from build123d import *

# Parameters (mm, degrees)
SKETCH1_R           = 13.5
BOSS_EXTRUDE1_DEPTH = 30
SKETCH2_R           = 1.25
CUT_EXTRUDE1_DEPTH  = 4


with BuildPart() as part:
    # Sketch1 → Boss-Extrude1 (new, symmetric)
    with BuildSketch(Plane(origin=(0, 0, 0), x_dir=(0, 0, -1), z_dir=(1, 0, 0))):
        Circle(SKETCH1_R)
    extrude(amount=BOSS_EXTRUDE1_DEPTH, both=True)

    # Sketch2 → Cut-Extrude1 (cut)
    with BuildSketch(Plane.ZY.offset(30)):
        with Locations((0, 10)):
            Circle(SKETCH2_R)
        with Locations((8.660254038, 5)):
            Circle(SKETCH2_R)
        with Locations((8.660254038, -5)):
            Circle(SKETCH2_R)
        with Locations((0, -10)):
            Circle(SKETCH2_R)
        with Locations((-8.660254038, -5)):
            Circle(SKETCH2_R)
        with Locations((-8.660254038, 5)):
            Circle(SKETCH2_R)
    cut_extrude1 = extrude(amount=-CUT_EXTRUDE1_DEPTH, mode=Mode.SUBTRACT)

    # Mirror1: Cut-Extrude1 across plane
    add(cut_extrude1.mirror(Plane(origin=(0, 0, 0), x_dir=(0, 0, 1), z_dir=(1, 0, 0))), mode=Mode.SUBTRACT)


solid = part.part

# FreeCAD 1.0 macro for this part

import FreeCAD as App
import Part
import Sketcher

doc = App.newDocument("Part")
body = doc.addObject("PartDesign::Body", "Body")

sketch1 = body.newObject("Sketcher::SketchObject", "Sketch")
sketch1.AttachmentSupport = (doc.getObject("YZ_Plane"), [""])
sketch1.MapMode = "FlatFace"
sketch1.addGeometry(Part.Circle(App.Vector(0, 0, 0), App.Vector(0, 0, 1), 13.5), False)
sketch1.addConstraint(Sketcher.Constraint("Coincident", 0, 3, -1, 1))
sketch1.addConstraint(Sketcher.Constraint("Diameter", 0, 27.0))
pad1 = body.newObject("PartDesign::Pad", "Pad")
pad1.Profile = sketch1
pad1.Length = 60
pad1.Midplane = True

sketch2 = body.newObject("Sketcher::SketchObject", "Sketch001")
sketch2.AttachmentSupport = (doc.getObject("YZ_Plane"), [""])
sketch2.MapMode = "FlatFace"
sketch2.AttachmentOffset = App.Placement(App.Vector(0, 0, -30), App.Rotation())
sketch2.addGeometry(Part.Circle(App.Vector(10, 0, 0), App.Vector(0, 0, 1), 1.25), False)
sketch2.addGeometry(Part.Circle(App.Vector(5, 8.660254, 0), App.Vector(0, 0, 1), 1.25), False)
sketch2.addGeometry(Part.Circle(App.Vector(-5, 8.660254, 0), App.Vector(0, 0, 1), 1.25), False)
sketch2.addGeometry(Part.Circle(App.Vector(-10, 0, 0), App.Vector(0, 0, 1), 1.25), False)
sketch2.addGeometry(Part.Circle(App.Vector(-5, -8.660254, 0), App.Vector(0, 0, 1), 1.25), False)
sketch2.addGeometry(Part.Circle(App.Vector(5, -8.660254, 0), App.Vector(0, 0, 1), 1.25), False)
sketch2.addConstraint(Sketcher.Constraint("Equal", 0, 1))
sketch2.addConstraint(Sketcher.Constraint("Equal", 1, 2))
sketch2.addConstraint(Sketcher.Constraint("Equal", 2, 3))
sketch2.addConstraint(Sketcher.Constraint("Equal", 3, 4))
sketch2.addConstraint(Sketcher.Constraint("Equal", 4, 5))
sketch2.addConstraint(Sketcher.Constraint("Symmetric", 0, 3, 3, 3, -1, 1))
sketch2.addConstraint(Sketcher.Constraint("Symmetric", 1, 3, 4, 3, -1, 1))
sketch2.addConstraint(Sketcher.Constraint("Symmetric", 2, 3, 5, 3, -1, 1))
sketch2.addConstraint(Sketcher.Constraint("Symmetric", 1, 3, 2, 3, -2))
sketch2.addConstraint(Sketcher.Constraint("PointOnObject", 0, 3, -1))
sketch2.addConstraint(Sketcher.Constraint("Diameter", 0, 2.5))
sketch2.addConstraint(Sketcher.Constraint("DistanceX", -1, 1, 0, 3, 10.0))
sketch2.addConstraint(Sketcher.Constraint("DistanceX", -1, 1, 1, 3, 5.0))
sketch2.addConstraint(Sketcher.Constraint("DistanceY", 4, 3, 2, 3, 17.320508))
pocket1 = body.newObject("PartDesign::Pocket", "Pocket")
pocket1.Profile = sketch2
pocket1.Length = 4
pocket1.Reversed = True
doc.recompute()

mirrored = body.newObject("PartDesign::Mirrored", "Mirrored")
mirrored.Originals = [pocket1]
mirrored.MirrorPlane = (doc.getObject("YZ_Plane"), [""])
body.Tip = mirrored

doc.recompute()
